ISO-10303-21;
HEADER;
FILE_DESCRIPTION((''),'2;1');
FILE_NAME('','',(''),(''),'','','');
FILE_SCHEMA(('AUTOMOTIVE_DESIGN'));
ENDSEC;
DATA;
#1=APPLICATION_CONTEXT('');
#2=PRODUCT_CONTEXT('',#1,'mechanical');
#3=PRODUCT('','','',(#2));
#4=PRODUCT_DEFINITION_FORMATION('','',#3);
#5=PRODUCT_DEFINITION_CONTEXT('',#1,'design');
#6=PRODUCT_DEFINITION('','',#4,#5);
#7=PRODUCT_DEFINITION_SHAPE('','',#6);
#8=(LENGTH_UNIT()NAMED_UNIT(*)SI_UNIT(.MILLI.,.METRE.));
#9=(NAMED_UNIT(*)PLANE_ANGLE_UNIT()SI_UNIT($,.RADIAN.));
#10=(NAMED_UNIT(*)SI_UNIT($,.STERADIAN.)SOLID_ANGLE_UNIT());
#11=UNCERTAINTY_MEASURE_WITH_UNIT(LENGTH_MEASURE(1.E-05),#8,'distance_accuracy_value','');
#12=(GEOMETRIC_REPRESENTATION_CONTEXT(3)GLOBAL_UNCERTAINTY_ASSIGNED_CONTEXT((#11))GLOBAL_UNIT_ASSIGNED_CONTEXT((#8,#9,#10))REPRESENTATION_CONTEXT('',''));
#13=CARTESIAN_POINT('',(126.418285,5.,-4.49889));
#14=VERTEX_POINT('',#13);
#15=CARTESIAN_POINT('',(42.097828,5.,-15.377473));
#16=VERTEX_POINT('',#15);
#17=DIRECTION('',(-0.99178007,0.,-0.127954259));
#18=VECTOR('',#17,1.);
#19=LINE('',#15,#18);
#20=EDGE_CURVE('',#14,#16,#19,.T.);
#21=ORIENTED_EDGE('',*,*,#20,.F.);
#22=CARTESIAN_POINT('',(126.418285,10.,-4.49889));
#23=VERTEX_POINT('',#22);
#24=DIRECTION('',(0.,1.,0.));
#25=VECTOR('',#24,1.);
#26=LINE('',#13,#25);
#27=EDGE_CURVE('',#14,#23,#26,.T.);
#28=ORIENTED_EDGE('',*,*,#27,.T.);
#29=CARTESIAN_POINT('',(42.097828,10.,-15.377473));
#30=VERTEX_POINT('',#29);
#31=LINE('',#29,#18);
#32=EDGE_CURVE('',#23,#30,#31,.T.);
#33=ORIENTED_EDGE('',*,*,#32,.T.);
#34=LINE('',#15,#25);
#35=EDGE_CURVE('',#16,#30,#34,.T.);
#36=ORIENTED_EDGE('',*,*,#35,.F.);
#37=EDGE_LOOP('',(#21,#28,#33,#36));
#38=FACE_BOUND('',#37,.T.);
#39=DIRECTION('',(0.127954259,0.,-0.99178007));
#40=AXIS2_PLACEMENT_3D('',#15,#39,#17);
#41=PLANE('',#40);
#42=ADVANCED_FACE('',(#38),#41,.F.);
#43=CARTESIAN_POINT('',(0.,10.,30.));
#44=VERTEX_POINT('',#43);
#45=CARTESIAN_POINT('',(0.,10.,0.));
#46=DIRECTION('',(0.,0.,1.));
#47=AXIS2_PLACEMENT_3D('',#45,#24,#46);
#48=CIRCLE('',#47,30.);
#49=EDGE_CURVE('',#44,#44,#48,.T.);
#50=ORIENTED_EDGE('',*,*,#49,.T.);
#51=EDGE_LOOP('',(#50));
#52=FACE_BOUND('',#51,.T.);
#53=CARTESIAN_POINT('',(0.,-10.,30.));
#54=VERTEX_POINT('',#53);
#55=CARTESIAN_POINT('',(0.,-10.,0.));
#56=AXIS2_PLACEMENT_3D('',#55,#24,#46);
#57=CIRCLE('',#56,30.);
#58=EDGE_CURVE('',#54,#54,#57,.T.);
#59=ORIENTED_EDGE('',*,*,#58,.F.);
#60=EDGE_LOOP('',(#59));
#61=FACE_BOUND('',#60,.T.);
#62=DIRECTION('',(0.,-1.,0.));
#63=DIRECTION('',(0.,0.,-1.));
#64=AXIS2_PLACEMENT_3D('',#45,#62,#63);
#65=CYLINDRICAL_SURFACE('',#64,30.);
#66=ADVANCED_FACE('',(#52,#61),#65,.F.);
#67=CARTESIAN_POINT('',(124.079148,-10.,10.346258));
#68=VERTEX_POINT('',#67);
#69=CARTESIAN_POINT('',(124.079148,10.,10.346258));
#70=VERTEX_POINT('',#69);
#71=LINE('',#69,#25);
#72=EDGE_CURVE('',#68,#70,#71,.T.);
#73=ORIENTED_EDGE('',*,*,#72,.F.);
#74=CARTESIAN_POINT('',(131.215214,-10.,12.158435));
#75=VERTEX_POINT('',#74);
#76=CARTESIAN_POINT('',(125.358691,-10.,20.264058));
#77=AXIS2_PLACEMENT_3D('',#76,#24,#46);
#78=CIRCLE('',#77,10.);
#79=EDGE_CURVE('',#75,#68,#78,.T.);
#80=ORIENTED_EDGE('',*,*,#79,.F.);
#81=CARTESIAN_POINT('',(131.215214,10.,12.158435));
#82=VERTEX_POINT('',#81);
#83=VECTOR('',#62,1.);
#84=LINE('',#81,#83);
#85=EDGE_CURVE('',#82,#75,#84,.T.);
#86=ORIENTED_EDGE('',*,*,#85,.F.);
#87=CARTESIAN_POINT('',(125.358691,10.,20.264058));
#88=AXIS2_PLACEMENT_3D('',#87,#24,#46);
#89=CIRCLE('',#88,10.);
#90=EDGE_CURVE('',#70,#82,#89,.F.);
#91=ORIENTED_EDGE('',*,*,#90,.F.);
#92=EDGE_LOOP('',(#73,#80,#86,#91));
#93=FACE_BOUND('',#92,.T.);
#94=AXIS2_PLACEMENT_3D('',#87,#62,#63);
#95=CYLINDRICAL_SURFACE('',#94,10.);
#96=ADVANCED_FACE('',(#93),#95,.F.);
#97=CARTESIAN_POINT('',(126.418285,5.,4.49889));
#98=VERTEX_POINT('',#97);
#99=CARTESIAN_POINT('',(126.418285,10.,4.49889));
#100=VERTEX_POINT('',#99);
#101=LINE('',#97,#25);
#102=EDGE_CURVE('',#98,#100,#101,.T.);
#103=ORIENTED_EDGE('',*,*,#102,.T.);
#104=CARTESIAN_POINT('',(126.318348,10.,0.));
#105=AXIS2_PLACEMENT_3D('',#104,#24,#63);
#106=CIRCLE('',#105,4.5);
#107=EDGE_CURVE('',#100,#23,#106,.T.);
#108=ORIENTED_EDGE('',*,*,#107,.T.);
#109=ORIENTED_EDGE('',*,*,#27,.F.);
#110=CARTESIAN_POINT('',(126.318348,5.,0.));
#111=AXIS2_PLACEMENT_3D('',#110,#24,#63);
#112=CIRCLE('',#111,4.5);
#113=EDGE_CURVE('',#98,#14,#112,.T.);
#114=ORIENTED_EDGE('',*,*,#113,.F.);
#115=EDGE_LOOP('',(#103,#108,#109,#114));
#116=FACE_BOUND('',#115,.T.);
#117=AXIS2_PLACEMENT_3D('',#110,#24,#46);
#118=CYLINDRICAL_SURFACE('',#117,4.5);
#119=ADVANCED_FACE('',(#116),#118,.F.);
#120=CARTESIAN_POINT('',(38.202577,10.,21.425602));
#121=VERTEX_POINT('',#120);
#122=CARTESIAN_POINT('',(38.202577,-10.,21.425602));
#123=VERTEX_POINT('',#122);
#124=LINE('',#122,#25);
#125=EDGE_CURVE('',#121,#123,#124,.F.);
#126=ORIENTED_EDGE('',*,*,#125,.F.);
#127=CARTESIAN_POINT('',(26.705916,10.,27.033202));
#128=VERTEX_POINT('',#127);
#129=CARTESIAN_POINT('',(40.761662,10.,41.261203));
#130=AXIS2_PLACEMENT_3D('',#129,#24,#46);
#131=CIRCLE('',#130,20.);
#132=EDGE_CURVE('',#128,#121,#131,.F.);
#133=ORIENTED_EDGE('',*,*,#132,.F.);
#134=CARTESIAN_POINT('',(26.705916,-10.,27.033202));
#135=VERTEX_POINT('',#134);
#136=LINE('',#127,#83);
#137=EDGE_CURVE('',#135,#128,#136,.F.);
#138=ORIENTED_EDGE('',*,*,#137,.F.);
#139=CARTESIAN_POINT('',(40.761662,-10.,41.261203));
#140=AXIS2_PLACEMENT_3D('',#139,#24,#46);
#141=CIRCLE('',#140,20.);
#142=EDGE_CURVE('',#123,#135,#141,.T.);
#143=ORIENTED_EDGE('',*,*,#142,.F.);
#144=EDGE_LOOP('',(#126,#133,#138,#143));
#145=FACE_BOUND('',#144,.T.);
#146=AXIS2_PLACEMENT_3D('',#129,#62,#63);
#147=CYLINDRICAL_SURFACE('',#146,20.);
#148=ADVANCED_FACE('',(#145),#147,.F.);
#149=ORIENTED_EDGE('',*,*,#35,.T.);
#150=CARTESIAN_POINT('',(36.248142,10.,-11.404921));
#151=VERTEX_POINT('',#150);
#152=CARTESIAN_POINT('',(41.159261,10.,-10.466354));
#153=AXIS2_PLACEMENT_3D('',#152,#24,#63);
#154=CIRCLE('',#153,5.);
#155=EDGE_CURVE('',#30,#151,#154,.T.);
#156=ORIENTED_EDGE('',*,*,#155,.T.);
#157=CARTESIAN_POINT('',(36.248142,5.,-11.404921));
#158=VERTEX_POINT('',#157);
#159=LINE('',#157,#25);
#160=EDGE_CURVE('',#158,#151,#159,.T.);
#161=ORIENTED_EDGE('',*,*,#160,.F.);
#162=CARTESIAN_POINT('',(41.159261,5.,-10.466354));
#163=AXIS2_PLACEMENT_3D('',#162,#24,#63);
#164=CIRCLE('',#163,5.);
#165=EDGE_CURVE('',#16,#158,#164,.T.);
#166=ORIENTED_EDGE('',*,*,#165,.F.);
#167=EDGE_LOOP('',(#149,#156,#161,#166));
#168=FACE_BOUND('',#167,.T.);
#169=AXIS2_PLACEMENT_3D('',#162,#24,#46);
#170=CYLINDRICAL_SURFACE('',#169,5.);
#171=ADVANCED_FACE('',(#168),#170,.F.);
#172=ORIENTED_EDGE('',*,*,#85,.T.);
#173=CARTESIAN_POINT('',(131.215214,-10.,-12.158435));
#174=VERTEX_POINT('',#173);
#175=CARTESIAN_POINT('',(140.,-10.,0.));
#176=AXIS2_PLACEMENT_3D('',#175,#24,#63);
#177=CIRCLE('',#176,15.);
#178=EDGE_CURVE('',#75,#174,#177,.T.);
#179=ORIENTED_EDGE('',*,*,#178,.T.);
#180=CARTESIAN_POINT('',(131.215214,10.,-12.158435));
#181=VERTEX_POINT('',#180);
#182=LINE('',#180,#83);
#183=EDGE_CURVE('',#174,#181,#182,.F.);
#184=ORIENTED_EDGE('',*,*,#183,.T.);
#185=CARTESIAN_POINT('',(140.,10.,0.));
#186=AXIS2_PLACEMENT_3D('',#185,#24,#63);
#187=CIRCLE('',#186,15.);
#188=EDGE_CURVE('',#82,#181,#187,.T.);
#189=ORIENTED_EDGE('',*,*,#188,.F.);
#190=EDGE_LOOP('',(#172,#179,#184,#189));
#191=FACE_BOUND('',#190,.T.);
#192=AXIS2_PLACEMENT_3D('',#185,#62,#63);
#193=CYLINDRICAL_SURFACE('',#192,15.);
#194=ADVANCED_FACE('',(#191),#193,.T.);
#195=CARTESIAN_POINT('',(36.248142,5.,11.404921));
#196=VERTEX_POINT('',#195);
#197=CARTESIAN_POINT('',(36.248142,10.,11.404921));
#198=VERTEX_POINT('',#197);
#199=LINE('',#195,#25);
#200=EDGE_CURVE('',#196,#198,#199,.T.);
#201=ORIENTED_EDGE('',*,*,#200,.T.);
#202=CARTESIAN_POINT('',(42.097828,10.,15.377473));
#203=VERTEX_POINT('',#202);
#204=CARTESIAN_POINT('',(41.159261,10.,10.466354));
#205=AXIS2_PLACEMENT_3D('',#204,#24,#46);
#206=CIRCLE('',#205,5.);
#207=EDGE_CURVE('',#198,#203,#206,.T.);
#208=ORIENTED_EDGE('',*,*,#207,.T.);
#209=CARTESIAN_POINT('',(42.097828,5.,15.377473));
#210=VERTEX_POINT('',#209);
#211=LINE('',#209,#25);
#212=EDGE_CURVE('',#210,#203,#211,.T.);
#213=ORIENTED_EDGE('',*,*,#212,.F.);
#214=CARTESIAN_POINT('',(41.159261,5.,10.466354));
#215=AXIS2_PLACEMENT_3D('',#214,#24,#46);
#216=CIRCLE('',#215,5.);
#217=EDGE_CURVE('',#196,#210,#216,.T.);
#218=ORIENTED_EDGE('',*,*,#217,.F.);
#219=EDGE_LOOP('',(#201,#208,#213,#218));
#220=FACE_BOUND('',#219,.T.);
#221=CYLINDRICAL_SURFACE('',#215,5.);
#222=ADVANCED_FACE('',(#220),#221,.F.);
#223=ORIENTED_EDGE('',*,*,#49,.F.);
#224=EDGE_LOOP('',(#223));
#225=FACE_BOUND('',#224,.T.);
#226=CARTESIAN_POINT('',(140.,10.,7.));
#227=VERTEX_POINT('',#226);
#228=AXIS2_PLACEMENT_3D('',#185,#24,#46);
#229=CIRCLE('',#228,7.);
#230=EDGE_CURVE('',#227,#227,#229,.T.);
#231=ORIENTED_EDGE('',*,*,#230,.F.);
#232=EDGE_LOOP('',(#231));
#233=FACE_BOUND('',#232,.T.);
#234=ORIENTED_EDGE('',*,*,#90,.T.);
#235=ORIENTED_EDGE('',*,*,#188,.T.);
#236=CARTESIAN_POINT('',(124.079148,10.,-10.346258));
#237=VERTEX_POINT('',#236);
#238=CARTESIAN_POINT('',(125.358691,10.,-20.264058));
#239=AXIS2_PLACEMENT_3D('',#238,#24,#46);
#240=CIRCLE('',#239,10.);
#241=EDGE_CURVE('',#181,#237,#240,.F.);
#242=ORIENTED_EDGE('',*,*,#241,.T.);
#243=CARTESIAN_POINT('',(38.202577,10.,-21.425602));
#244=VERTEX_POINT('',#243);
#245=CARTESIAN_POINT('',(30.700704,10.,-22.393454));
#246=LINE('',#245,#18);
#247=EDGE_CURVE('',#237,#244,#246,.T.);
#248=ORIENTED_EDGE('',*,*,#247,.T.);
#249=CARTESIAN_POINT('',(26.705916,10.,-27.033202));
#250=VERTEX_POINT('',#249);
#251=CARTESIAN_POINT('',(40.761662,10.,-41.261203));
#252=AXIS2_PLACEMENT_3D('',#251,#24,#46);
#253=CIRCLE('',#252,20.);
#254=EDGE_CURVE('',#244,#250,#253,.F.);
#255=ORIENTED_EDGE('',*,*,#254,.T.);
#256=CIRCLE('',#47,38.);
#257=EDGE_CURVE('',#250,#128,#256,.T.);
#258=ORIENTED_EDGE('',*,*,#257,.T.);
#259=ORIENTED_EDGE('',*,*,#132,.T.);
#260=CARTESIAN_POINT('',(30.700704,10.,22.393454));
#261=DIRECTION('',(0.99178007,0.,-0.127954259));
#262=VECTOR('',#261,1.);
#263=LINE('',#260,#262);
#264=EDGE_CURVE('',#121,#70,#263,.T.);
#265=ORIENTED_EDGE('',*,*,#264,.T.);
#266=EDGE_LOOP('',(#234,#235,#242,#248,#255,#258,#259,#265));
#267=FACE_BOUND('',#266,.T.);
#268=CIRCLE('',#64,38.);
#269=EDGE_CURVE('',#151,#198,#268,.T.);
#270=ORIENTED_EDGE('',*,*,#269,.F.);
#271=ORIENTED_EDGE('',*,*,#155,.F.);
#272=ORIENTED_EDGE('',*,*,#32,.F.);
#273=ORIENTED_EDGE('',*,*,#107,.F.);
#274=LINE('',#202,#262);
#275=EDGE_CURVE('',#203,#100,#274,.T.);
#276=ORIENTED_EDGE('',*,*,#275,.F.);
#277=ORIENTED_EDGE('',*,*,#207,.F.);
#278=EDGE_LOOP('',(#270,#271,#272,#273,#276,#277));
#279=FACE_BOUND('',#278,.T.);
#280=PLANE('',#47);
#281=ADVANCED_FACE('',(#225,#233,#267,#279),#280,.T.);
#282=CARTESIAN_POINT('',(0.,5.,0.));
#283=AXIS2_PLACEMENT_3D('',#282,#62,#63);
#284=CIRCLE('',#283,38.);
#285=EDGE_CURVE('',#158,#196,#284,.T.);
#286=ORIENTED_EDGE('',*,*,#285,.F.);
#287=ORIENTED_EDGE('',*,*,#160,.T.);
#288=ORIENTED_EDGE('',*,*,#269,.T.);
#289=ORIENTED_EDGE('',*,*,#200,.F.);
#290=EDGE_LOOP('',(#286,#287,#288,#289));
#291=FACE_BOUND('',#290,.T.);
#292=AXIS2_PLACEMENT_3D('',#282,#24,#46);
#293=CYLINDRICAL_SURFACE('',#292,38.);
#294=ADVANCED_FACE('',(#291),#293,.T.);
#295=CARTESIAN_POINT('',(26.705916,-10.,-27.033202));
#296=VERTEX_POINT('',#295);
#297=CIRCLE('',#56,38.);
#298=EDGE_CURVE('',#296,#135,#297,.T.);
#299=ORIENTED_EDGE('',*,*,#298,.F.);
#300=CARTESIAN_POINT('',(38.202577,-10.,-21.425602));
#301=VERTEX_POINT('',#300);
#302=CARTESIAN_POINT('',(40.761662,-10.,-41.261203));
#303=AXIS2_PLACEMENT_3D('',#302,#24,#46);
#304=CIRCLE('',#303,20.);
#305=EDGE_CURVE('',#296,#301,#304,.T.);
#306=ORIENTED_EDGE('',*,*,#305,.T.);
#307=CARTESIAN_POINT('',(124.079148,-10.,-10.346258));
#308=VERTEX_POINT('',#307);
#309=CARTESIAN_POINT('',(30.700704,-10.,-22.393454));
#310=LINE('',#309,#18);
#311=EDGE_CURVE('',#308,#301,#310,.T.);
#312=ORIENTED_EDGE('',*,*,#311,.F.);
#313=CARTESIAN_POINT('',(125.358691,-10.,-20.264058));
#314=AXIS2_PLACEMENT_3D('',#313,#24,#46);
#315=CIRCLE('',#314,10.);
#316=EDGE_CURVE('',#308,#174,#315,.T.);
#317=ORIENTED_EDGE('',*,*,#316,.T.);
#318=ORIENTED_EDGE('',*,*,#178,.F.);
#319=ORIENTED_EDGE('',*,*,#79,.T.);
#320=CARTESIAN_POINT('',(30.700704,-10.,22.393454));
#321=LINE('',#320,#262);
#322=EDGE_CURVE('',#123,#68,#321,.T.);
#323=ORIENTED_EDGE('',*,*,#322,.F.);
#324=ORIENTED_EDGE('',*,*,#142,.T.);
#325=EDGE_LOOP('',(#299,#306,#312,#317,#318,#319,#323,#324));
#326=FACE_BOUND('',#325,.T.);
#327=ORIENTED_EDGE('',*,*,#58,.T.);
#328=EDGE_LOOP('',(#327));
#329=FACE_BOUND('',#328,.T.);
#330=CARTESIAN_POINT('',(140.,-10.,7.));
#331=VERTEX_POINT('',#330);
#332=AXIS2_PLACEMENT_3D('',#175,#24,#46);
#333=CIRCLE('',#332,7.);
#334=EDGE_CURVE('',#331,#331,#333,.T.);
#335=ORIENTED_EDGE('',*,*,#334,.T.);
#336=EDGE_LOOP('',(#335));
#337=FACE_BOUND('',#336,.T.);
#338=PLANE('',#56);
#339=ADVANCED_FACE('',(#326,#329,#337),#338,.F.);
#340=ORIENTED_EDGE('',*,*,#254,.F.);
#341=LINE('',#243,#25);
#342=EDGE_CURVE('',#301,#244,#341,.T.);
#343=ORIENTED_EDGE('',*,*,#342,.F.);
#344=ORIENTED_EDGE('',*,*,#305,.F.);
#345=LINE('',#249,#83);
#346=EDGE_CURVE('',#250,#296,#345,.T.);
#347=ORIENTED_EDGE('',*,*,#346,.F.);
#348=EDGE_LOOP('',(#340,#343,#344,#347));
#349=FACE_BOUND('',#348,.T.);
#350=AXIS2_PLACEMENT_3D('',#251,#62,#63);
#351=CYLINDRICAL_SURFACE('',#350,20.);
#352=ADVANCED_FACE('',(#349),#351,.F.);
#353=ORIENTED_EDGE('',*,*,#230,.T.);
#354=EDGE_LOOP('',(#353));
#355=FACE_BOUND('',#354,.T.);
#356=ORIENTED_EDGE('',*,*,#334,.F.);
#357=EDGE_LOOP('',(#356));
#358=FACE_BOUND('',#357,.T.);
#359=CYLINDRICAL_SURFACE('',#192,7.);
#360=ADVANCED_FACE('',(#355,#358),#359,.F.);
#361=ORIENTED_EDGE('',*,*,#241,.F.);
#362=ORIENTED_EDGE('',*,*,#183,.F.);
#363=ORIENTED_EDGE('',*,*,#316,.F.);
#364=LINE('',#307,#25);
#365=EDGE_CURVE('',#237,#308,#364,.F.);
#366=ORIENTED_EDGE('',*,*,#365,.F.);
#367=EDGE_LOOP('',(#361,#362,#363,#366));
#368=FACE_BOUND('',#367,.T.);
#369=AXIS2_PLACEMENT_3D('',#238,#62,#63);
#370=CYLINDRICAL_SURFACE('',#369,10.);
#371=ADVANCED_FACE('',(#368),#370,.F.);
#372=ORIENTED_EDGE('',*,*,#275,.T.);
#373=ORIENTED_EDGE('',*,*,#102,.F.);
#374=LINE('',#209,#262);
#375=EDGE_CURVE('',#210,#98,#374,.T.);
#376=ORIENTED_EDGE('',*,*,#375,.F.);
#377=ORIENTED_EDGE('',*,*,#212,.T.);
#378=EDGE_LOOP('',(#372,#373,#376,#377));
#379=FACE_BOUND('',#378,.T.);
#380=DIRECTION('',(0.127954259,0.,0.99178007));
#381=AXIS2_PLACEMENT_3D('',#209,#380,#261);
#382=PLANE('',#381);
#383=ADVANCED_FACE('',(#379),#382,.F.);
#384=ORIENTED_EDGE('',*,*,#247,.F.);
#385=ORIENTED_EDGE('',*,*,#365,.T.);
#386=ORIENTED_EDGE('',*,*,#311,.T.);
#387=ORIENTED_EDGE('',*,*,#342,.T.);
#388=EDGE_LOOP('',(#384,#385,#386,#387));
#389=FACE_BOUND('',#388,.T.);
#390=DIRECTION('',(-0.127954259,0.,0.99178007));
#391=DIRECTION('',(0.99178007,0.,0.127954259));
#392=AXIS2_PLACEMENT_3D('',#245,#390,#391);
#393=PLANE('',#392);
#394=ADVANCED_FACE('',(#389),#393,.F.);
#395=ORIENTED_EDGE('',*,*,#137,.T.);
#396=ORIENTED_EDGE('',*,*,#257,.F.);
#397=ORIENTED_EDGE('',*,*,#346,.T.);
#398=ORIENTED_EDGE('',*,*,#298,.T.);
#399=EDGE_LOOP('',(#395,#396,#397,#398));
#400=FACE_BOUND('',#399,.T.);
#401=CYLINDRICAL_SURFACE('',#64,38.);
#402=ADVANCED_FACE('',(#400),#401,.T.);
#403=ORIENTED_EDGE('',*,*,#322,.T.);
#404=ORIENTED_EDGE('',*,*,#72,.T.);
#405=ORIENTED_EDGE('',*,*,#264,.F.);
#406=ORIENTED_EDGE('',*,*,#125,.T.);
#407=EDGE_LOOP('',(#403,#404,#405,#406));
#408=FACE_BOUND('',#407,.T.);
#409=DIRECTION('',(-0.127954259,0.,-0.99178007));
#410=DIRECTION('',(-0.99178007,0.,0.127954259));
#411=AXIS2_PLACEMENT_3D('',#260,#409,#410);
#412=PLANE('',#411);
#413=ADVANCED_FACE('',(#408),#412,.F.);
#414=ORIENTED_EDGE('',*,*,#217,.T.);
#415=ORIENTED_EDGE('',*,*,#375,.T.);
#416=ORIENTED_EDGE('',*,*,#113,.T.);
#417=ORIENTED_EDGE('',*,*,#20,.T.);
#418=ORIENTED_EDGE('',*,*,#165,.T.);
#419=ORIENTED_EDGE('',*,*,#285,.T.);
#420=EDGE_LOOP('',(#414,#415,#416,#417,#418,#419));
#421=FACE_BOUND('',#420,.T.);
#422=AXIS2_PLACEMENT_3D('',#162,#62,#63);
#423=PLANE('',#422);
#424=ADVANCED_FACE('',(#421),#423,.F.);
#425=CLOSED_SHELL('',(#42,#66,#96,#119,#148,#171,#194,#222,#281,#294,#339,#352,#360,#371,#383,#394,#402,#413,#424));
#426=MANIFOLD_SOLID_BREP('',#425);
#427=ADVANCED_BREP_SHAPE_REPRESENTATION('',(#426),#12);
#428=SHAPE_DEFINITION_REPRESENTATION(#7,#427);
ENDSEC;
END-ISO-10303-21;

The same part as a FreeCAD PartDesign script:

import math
import FreeCAD as App
import Part
import Sketcher

V = App.Vector
Q = App.Units.Quantity


def edges_at(feature, points):
    """Names of the edges that pass closest to the given points."""
    edges = feature.Shape.Edges
    near = lambda p: min(range(len(edges)), key=lambda i: edges[i].distToShape(Part.Vertex(*p))[0])
    return sorted({f"Edge{near(p) + 1}" for p in points})

doc = App.newDocument("Part")
body = doc.addObject("PartDesign::Body", "Body")

# Sketch on XZ plane
sketch1 = body.newObject("Sketcher::SketchObject", "Sketch")
sketch1.AttachmentSupport = (doc.getObject("XZ_Plane"), [""])
sketch1.MapMode = "FlatFace"
sketch1.addGeometry(Part.LineSegment(V(128.610913, -9.761593, 0), V(30.700704, -22.393454, 0)), False)
sketch1.addGeometry(Part.ArcOfCircle(Part.Circle(V(0, 0, 0), V(0, 0, 1), 38), math.radians(36.107451), math.radians(323.892549)), False)
sketch1.addGeometry(Part.LineSegment(V(30.700704, 22.393454, 0), V(128.610913, 9.761593, 0)), False)
sketch1.addGeometry(Part.ArcOfCircle(Part.Circle(V(140, 0, 0), V(0, 0, 1), 15), math.radians(-139.400101), math.radians(139.400101)), False)
sketch1.addGeometry(Part.Circle(V(140, 0, 0), V(0, 0, 1), 7), False)
sketch1.addGeometry(Part.Circle(V(0, 0, 0), V(0, 0, 1), 30), False)
sketch1.addConstraint(Sketcher.Constraint("Coincident", 0, 2, 1, 2))
sketch1.addConstraint(Sketcher.Constraint("Coincident", 1, 1, 2, 1))
sketch1.addConstraint(Sketcher.Constraint("Coincident", 2, 2, 3, 2))
sketch1.addConstraint(Sketcher.Constraint("Coincident", 3, 1, 0, 1))
sketch1.addConstraint(Sketcher.Constraint("Coincident", 1, 3, -1, 1))
sketch1.addConstraint(Sketcher.Constraint("Coincident", 5, 3, -1, 1))
sketch1.addConstraint(Sketcher.Constraint("Coincident", 4, 3, 3, 3))
sketch1.addConstraint(Sketcher.Constraint("Symmetric", 2, 2, 3, 1, -1))
sketch1.addConstraint(Sketcher.Constraint("Vertical", 0, 2, 1, 1))
sketch1.addConstraint(Sketcher.Constraint("Diameter", 4, Q("14 mm")))
sketch1.addConstraint(Sketcher.Constraint("Diameter", 5, Q("60 mm")))
sketch1.addConstraint(Sketcher.Constraint("Radius", 1, Q("38 mm")))
sketch1.addConstraint(Sketcher.Constraint("Radius", 3, Q("15 mm")))
sketch1.addConstraint(Sketcher.Constraint("DistanceX", -1, 1, 3, 3, Q("140 mm")))
sketch1.addConstraint(Sketcher.Constraint("DistanceY", 0, 2, 1, 1, Q("44.786909 mm")))
sketch1.addConstraint(Sketcher.Constraint("DistanceX", 1, 1, 2, 2, Q("97.91021 mm")))
pad1 = body.newObject("PartDesign::Pad", "Pad")
pad1.Profile = sketch1
pad1.Length = 20
pad1.Midplane = True
doc.recompute()

fillet = body.newObject("PartDesign::Fillet", "Fillet")
fillet.Base = (pad1, edges_at(pad1, [(128.611, 0, -9.762), (128.611, 0, 9.762)]))
fillet.Radius = 10
doc.recompute()

fillet2 = body.newObject("PartDesign::Fillet", "Fillet001")
fillet2.Base = (fillet, edges_at(fillet, [(30.701, 0, -22.393), (30.701, 0, 22.393)]))
fillet2.Radius = 20

# Sketch on XZ plane
sketch2 = body.newObject("Sketcher::SketchObject", "Sketch001")
sketch2.AttachmentSupport = (doc.getObject("XZ_Plane"), [""])
sketch2.MapMode = "FlatFace"
sketch2.AttachmentOffset = App.Placement(V(0, 0, -10), App.Rotation())
sketch2.addGeometry(Part.LineSegment(V(42.097828, 15.377473, 0), V(126.418285, 4.49889, 0)), False)
sketch2.addGeometry(Part.ArcOfCircle(Part.Circle(V(126.318348, 0, 0), V(0, 0, 1), 4.5), math.radians(-88.727457), math.radians(88.727457)), False)
sketch2.addGeometry(Part.LineSegment(V(126.418285, -4.49889, 0), V(42.097828, -15.377473, 0)), False)
sketch2.addGeometry(Part.ArcOfCircle(Part.Circle(V(41.159261, -10.466354, 0), V(0, 0, 1), 5), math.radians(-169.180621), math.radians(-79.180621)), False)
sketch2.addGeometry(Part.ArcOfCircle(Part.Circle(V(0, 0, 0), V(0, 0, 1), 38), math.radians(-17.465382), math.radians(17.465382)), False)
sketch2.addGeometry(Part.ArcOfCircle(Part.Circle(V(41.159261, 10.466354, 0), V(0, 0, 1), 5), math.radians(79.180621), math.radians(169.180621)), False)
sketch2.addConstraint(Sketcher.Constraint("Coincident", 0, 2, 1, 2))
sketch2.addConstraint(Sketcher.Constraint("Coincident", 1, 1, 2, 1))
sketch2.addConstraint(Sketcher.Constraint("Coincident", 2, 2, 3, 2))
sketch2.addConstraint(Sketcher.Constraint("Coincident", 3, 1, 4, 1))
sketch2.addConstraint(Sketcher.Constraint("Coincident", 4, 2, 5, 2))
sketch2.addConstraint(Sketcher.Constraint("Coincident", 5, 1, 0, 1))
sketch2.addConstraint(Sketcher.Constraint("Coincident", 4, 3, -1, 1))
sketch2.addConstraint(Sketcher.Constraint("Equal", 3, 5))
sketch2.addConstraint(Sketcher.Constraint("Symmetric", 3, 3, 5, 3, -1))
sketch2.addConstraint(Sketcher.Constraint("Symmetric", 0, 2, 1, 1, -1))
sketch2.addConstraint(Sketcher.Constraint("Vertical", 2, 2, 5, 1))
sketch2.addConstraint(Sketcher.Constraint("Radius", 3, Q("5 mm")))
sketch2.addConstraint(Sketcher.Constraint("Radius", 4, Q("38 mm")))
sketch2.addConstraint(Sketcher.Constraint("Radius", 1, Q("4.5 mm")))
sketch2.addConstraint(Sketcher.Constraint("Distance", 0, Q("85.019309 mm")))
sketch2.addConstraint(Sketcher.Constraint("DistanceX", -1, 1, 3, 3, Q("41.159261 mm")))
sketch2.addConstraint(Sketcher.Constraint("DistanceY", -1, 1, 0, 2, Q("4.49889 mm")))
sketch2.addConstraint(Sketcher.Constraint("DistanceX", -1, 1, 2, 2, Q("42.097828 mm")))
sketch2.addConstraint(Sketcher.Constraint("DistanceX", -1, 1, 3, 1, Q("36.248142 mm")))
pocket1 = body.newObject("PartDesign::Pocket", "Pocket")
pocket1.Profile = sketch2
pocket1.Length = 5
pocket1.Reversed = True

doc.recompute()
